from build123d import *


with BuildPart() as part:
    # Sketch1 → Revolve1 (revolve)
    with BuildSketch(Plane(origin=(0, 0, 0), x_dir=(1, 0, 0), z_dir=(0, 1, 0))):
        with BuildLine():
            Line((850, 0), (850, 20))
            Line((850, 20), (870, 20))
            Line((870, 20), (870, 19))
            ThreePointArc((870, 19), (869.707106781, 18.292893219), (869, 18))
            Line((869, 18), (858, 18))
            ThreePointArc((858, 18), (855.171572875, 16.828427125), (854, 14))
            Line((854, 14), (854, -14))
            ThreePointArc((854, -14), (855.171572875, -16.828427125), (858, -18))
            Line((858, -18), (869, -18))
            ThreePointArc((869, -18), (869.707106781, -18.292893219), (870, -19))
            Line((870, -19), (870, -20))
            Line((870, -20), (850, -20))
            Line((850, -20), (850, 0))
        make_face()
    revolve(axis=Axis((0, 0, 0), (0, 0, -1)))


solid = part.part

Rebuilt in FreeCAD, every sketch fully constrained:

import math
import FreeCAD as App
import Part
import Sketcher
Q = App.Units.Quantity

doc = App.newDocument("Part")
params = doc.addObject("Spreadsheet::Sheet", "Params")
for row, (alias, value) in enumerate([
    ("sketch1_radius", "1 mm"),
    ("sketch1_radius2", "4 mm"),
    ("sketch1_width", "20 mm"),
    ("sketch1_width2", "11 mm"),
    ("sketch1_height", "40 mm"),
    ("revolution_angle", "360 deg"),
], start=1):
    params.set(f"A{row}", alias)
    params.set(f"B{row}", "=" + value)
    params.setAlias(f"B{row}", alias)

body = doc.addObject("PartDesign::Body", "Body")

# Sketch on XZ plane
sketch1 = body.newObject("Sketcher::SketchObject", "Sketch")
sketch1.AttachmentSupport = (doc.getObject("XZ_Plane"), [""])
sketch1.MapMode = "FlatFace"
sketch1.addGeometry([
    Part.LineSegment(App.Vector(870, -20, 0), App.Vector(850, -20, 0)),  # 0
    Part.LineSegment(App.Vector(850, -20, 0), App.Vector(850, 20, 0)),  # 1
    Part.LineSegment(App.Vector(850, 20, 0), App.Vector(870, 20, 0)),  # 2
    Part.LineSegment(App.Vector(870, 20, 0), App.Vector(870, 19, 0)),  # 3
    Part.ArcOfCircle(Part.Circle(App.Vector(869, 19, 0), App.Vector(0, 0, 1), 1), math.radians(-90), math.radians(0)),  # 4
    Part.LineSegment(App.Vector(869, 18, 0), App.Vector(858, 18, 0)),  # 5
    Part.ArcOfCircle(Part.Circle(App.Vector(858, 14, 0), App.Vector(0, 0, 1), 4), math.radians(90), math.radians(180)),  # 6
    Part.LineSegment(App.Vector(854, 14, 0), App.Vector(854, -14, 0)),  # 7
    Part.ArcOfCircle(Part.Circle(App.Vector(858, -14, 0), App.Vector(0, 0, 1), 4), math.radians(180), math.radians(270)),  # 8
    Part.LineSegment(App.Vector(858, -18, 0), App.Vector(869, -18, 0)),  # 9
    Part.ArcOfCircle(Part.Circle(App.Vector(869, -19, 0), App.Vector(0, 0, 1), 1), math.radians(0), math.radians(90)),  # 10
    Part.LineSegment(App.Vector(870, -19, 0), App.Vector(870, -20, 0)),  # 11
], False)
sketch1.addConstraint([
    Sketcher.Constraint("Coincident", 0, 2, 1, 1),
    Sketcher.Constraint("Coincident", 1, 2, 2, 1),
    Sketcher.Constraint("Coincident", 2, 2, 3, 1),
    Sketcher.Constraint("Tangent", 3, 2, 4, 2),
    Sketcher.Constraint("Tangent", 4, 1, 5, 1),
    Sketcher.Constraint("Tangent", 5, 2, 6, 1),
    Sketcher.Constraint("Tangent", 6, 2, 7, 1),
    Sketcher.Constraint("Tangent", 7, 2, 8, 1),
    Sketcher.Constraint("Tangent", 8, 2, 9, 1),
    Sketcher.Constraint("Tangent", 9, 2, 10, 2),
    Sketcher.Constraint("Tangent", 10, 1, 11, 1),
    Sketcher.Constraint("Coincident", 11, 2, 0, 1),
    Sketcher.Constraint("Horizontal", 0),
    Sketcher.Constraint("Vertical", 1),
    Sketcher.Constraint("Horizontal", 2),
    Sketcher.Constraint("Vertical", 3),
    Sketcher.Constraint("Horizontal", 5),
    Sketcher.Constraint("Vertical", 7),
    Sketcher.Constraint("Horizontal", 9),
    Sketcher.Constraint("Vertical", 11),
    Sketcher.Constraint("Equal", 6, 8),
    Sketcher.Constraint("Equal", 4, 10),
    Sketcher.Constraint("Symmetric", 4, 3, 10, 3, -1),
    Sketcher.Constraint("Equal", 3, 11),
    Sketcher.Constraint("Radius", 4, Q("1 mm")),
    Sketcher.Constraint("Radius", 6, Q("4 mm")),
    Sketcher.Constraint("DistanceX", 0, 2, 0, 1, Q("20 mm")),
    Sketcher.Constraint("DistanceX", 5, 2, 5, 1, Q("11 mm")),
    Sketcher.Constraint("DistanceY", 1, 1, 1, 2, Q("40 mm")),
    Sketcher.Constraint("DistanceY", 3, 2, 3, 1, Q("1 mm")),
    Sketcher.Constraint("DistanceX", -1, 1, 4, 3, Q("869 mm")),
])
sketch1.setExpression("Constraints[24]", "Params.sketch1_radius")
sketch1.setExpression("Constraints[25]", "Params.sketch1_radius2")
sketch1.setExpression("Constraints[26]", "Params.sketch1_width")
sketch1.setExpression("Constraints[27]", "Params.sketch1_width2")
sketch1.setExpression("Constraints[28]", "Params.sketch1_height")
revolution = body.newObject("PartDesign::Revolution", "Revolution")
revolution.Profile = sketch1
revolution.ReferenceAxis = (sketch1, ["V_Axis"])
revolution.setExpression("Angle", "Params.revolution_angle")

doc.recompute()
